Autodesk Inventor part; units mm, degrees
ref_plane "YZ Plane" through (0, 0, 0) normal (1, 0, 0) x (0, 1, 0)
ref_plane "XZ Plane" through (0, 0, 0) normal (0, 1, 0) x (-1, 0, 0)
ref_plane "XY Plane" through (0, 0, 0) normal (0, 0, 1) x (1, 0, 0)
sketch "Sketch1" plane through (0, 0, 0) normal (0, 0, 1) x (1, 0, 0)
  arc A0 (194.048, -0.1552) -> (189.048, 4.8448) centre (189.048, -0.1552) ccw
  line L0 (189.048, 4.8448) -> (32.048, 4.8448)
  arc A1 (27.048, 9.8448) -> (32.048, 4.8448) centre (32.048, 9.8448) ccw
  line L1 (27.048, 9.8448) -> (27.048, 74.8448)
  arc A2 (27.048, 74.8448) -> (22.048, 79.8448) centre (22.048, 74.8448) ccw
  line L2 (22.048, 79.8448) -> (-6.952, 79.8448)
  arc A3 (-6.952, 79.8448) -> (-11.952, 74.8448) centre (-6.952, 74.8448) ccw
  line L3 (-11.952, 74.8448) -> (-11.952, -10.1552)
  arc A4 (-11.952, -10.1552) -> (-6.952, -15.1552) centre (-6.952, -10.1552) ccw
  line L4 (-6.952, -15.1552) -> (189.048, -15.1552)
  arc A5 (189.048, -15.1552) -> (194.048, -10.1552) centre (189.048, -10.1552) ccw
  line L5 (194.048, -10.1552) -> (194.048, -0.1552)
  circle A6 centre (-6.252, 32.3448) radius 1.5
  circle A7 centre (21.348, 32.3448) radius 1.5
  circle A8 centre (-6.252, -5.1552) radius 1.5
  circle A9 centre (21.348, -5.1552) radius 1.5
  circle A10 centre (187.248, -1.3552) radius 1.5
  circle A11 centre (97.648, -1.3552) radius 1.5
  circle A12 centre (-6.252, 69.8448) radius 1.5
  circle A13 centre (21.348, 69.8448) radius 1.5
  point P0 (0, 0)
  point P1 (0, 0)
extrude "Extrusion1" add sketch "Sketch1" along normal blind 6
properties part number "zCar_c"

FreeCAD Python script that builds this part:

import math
import FreeCAD as App
import Part
import Sketcher
from FreeCAD import Vector

doc = App.newDocument("Part")
body = doc.addObject("PartDesign::Body", "Body")

# Sketch on XY plane
sketch1 = body.newObject("Sketcher::SketchObject", "Sketch")
sketch1.AttachmentSupport = (doc.getObject("XY_Plane"), [""])
sketch1.MapMode = "FlatFace"
sketch1.addGeometry(Part.LineSegment(Vector(194, -10.2, 0), Vector(194, -0.2, 0)), False)
sketch1.addGeometry(Part.ArcOfCircle(Part.Circle(Vector(189, -0.2, 0), Vector(0, 0, 1), 5), math.radians(0), math.radians(90)), False)
sketch1.addGeometry(Part.LineSegment(Vector(189, 4.8, 0), Vector(32, 4.8, 0)), False)
sketch1.addGeometry(Part.ArcOfCircle(Part.Circle(Vector(32, 9.8, 0), Vector(0, 0, 1), 5), math.radians(180), math.radians(270)), False)
sketch1.addGeometry(Part.LineSegment(Vector(27, 9.8, 0), Vector(27, 74.8, 0)), False)
sketch1.addGeometry(Part.ArcOfCircle(Part.Circle(Vector(22, 74.8, 0), Vector(0, 0, 1), 5), math.radians(0), math.radians(90)), False)
sketch1.addGeometry(Part.LineSegment(Vector(22, 79.8, 0), Vector(-7, 79.8, 0)), False)
sketch1.addGeometry(Part.ArcOfCircle(Part.Circle(Vector(-7, 74.8, 0), Vector(0, 0, 1), 5), math.radians(90), math.radians(180)), False)
sketch1.addGeometry(Part.LineSegment(Vector(-12, 74.8, 0), Vector(-12, -10.2, 0)), False)
sketch1.addGeometry(Part.ArcOfCircle(Part.Circle(Vector(-7, -10.2, 0), Vector(0, 0, 1), 5), math.radians(180), math.radians(270)), False)
sketch1.addGeometry(Part.LineSegment(Vector(-7, -15.2, 0), Vector(189, -15.2, 0)), False)
sketch1.addGeometry(Part.ArcOfCircle(Part.Circle(Vector(189, -10.2, 0), Vector(0, 0, 1), 5), math.radians(-90), math.radians(0)), False)
sketch1.addGeometry(Part.Circle(Vector(-6.3, -5.2, 0), Vector(0, 0, 1), 1.5), False)
sketch1.addGeometry(Part.Circle(Vector(21.3, -5.2, 0), Vector(0, 0, 1), 1.5), False)
sketch1.addGeometry(Part.Circle(Vector(97.6, -1.4, 0), Vector(0, 0, 1), 1.5), False)
sketch1.addGeometry(Part.Circle(Vector(187.2, -1.4, 0), Vector(0, 0, 1), 1.5), False)
sketch1.addGeometry(Part.Circle(Vector(-6.3, 32.3, 0), Vector(0, 0, 1), 1.5), False)
sketch1.addGeometry(Part.Circle(Vector(21.3, 32.3, 0), Vector(0, 0, 1), 1.5), False)
sketch1.addGeometry(Part.Circle(Vector(-6.3, 69.8, 0), Vector(0, 0, 1), 1.5), False)
sketch1.addGeometry(Part.Circle(Vector(21.3, 69.8, 0), Vector(0, 0, 1), 1.5), False)
sketch1.addConstraint(Sketcher.Constraint("Tangent", 0, 2, 1, 1))
sketch1.addConstraint(Sketcher.Constraint("Tangent", 1, 2, 2, 1))
sketch1.addConstraint(Sketcher.Constraint("Tangent", 2, 2, 3, 2))
sketch1.addConstraint(Sketcher.Constraint("Tangent", 3, 1, 4, 1))
sketch1.addConstraint(Sketcher.Constraint("Tangent", 4, 2, 5, 1))
sketch1.addConstraint(Sketcher.Constraint("Tangent", 5, 2, 6, 1))
sketch1.addConstraint(Sketcher.Constraint("Tangent", 6, 2, 7, 1))
sketch1.addConstraint(Sketcher.Constraint("Tangent", 7, 2, 8, 1))
sketch1.addConstraint(Sketcher.Constraint("Tangent", 8, 2, 9, 1))
sketch1.addConstraint(Sketcher.Constraint("Tangent", 9, 2, 10, 1))
sketch1.addConstraint(Sketcher.Constraint("Tangent", 10, 2, 11, 1))
sketch1.addConstraint(Sketcher.Constraint("Tangent", 11, 2, 0, 1))
sketch1.addConstraint(Sketcher.Constraint("Vertical", 0))
sketch1.addConstraint(Sketcher.Constraint("Horizontal", 2))
sketch1.addConstraint(Sketcher.Constraint("Vertical", 4))
sketch1.addConstraint(Sketcher.Constraint("Horizontal", 6))
sketch1.addConstraint(Sketcher.Constraint("Vertical", 8))
sketch1.addConstraint(Sketcher.Constraint("Horizontal", 10))
sketch1.addConstraint(Sketcher.Constraint("Equal", 1, 3))
sketch1.addConstraint(Sketcher.Constraint("Equal", 3, 5))
sketch1.addConstraint(Sketcher.Constraint("Equal", 5, 7))
sketch1.addConstraint(Sketcher.Constraint("Equal", 7, 9))
sketch1.addConstraint(Sketcher.Constraint("Equal", 9, 11))
sketch1.addConstraint(Sketcher.Constraint("Equal", 12, 13))
sketch1.addConstraint(Sketcher.Constraint("Equal", 13, 14))
sketch1.addConstraint(Sketcher.Constraint("Equal", 14, 15))
sketch1.addConstraint(Sketcher.Constraint("Equal", 15, 16))
sketch1.addConstraint(Sketcher.Constraint("Equal", 16, 17))
sketch1.addConstraint(Sketcher.Constraint("Equal", 17, 18))
sketch1.addConstraint(Sketcher.Constraint("Equal", 18, 19))
sketch1.addConstraint(Sketcher.Constraint("Horizontal", 12, 3, 13, 3))
sketch1.addConstraint(Sketcher.Constraint("Horizontal", 14, 3, 15, 3))
sketch1.addConstraint(Sketcher.Constraint("Horizontal", 16, 3, 17, 3))
sketch1.addConstraint(Sketcher.Constraint("Horizontal", 18, 3, 19, 3))
sketch1.addConstraint(Sketcher.Constraint("Vertical", 12, 3, 16, 3))
sketch1.addConstraint(Sketcher.Constraint("Vertical", 13, 3, 17, 3))
sketch1.addConstraint(Sketcher.Constraint("Vertical", 16, 3, 18, 3))
sketch1.addConstraint(Sketcher.Constraint("Vertical", 17, 3, 19, 3))
sketch1.addConstraint(Sketcher.Constraint("Diameter", 12, 3.0))
sketch1.addConstraint(Sketcher.Constraint("Radius", 1, 5.0))
sketch1.addConstraint(Sketcher.Constraint("DistanceX", 2, 2, 2, 1, 157.0))
sketch1.addConstraint(Sketcher.Constraint("DistanceX", 6, 2, 6, 1, 29.0))
sketch1.addConstraint(Sketcher.Constraint("DistanceY", 0, 1, 0, 2, 10.0))
sketch1.addConstraint(Sketcher.Constraint("DistanceY", 4, 1, 4, 2, 65.0))
sketch1.addConstraint(Sketcher.Constraint("DistanceY", 9, 3, 12, 3, 5.0))
sketch1.addConstraint(Sketcher.Constraint("DistanceY", 18, 3, 7, 3, 5.0))
sketch1.addConstraint(Sketcher.Constraint("DistanceX", 9, 3, 12, 3, 0.7))
sketch1.addConstraint(Sketcher.Constraint("DistanceX", 13, 3, 3, 3, 10.7))
sketch1.addConstraint(Sketcher.Constraint("DistanceX", 3, 3, 14, 3, 65.6))
sketch1.addConstraint(Sketcher.Constraint("DistanceY", 14, 3, 3, 3, 11.2))
sketch1.addConstraint(Sketcher.Constraint("DistanceX", 15, 3, 1, 3, 1.8))
sketch1.addConstraint(Sketcher.Constraint("DistanceY", 12, 3, 16, 3, 37.5))
sketch1.addConstraint(Sketcher.Constraint("DistanceX", -1, 1, 1, 3, 189.048))
sketch1.addConstraint(Sketcher.Constraint("DistanceY", 1, 3, -1, 1, 0.1552))
pad1 = body.newObject("PartDesign::Pad", "Pad")
pad1.Profile = sketch1
pad1.Length = 6

doc.recompute()
